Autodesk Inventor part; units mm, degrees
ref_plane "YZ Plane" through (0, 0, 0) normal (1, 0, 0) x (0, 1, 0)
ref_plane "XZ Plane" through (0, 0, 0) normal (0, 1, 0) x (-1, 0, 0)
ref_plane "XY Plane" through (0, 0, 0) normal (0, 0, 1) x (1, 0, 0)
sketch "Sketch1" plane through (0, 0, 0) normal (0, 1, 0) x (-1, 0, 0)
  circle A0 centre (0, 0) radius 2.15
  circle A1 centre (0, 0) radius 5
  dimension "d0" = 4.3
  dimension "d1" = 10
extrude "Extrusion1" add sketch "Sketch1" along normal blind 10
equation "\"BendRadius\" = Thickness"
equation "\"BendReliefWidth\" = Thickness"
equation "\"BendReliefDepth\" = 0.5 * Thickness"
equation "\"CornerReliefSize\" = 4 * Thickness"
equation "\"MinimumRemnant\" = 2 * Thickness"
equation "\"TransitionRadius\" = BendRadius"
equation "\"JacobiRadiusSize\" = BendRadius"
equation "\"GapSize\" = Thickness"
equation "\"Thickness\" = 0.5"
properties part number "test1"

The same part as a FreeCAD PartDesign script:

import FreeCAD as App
import Part
import Sketcher

V = App.Vector
Q = App.Units.Quantity

doc = App.newDocument("Part")
body = doc.addObject("PartDesign::Body", "Body")

sketch1 = body.newObject("Sketcher::SketchObject", "Sketch")
sketch1.AttachmentSupport = (doc.getObject("XZ_Plane"), [""])
sketch1.MapMode = "FlatFace"
sketch1.addGeometry([
    Part.Circle(V(0, 0, 0), V(0, 0, 1), 5),
    Part.Circle(V(0, 0, 0), V(0, 0, 1), 2.1),
], False)
sketch1.addConstraint([
    Sketcher.Constraint("Coincident", 0, 3, -1, 1),
    Sketcher.Constraint("Coincident", 1, 3, -1, 1),
    Sketcher.Constraint("Diameter", 0, Q("10 mm")),
    Sketcher.Constraint("Diameter", 1, Q("4.3 mm")),
])
pad1 = body.newObject("PartDesign::Pad", "Pad")
pad1.Profile = sketch1
pad1.Length = 10
pad1.Reversed = True

doc.recompute()
